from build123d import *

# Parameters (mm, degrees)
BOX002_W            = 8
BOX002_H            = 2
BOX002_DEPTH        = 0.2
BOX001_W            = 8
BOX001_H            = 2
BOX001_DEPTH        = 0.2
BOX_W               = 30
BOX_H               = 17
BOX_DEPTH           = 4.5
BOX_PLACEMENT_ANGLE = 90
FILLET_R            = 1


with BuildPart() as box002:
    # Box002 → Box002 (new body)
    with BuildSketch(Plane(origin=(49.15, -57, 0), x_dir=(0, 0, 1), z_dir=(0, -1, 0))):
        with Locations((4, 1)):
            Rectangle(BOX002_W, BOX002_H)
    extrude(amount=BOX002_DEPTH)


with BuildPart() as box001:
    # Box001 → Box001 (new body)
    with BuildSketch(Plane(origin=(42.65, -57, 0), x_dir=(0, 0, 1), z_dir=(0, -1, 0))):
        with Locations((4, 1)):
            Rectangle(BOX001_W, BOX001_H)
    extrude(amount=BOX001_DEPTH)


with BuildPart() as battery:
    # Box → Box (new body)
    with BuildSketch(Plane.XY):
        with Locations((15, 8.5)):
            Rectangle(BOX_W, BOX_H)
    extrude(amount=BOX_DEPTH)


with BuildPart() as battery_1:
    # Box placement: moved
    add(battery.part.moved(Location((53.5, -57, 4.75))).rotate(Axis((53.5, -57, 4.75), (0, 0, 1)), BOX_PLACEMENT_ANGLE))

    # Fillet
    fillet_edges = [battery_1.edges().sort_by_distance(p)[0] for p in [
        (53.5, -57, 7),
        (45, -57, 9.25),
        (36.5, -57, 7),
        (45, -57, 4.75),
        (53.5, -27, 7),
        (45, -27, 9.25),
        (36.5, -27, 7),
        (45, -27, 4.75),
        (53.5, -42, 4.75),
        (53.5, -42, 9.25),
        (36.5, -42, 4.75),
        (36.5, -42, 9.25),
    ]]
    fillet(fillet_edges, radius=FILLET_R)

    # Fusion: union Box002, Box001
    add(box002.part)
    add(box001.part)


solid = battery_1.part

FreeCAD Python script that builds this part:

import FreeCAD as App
import Part
import Sketcher

doc = App.newDocument("Part")
params = doc.addObject("Spreadsheet::Sheet", "Params")
for row, (alias, value) in enumerate([
    ("sketch1_width", "2 mm"),
    ("sketch1_height", "8 mm"),
    ("pad1_length", "0.2 mm"),
    ("sketch2_width", "2 mm"),
    ("sketch2_height", "8 mm"),
    ("pad2_length", "0.2 mm"),
    ("sketch3_width", "30 mm"),
    ("sketch3_height", "17 mm"),
    ("pad3_length", "4.5 mm"),
    ("fillet_radius", "1 mm"),
], start=1):
    params.set(f"A{row}", alias)
    params.set(f"B{row}", "=" + value)
    params.setAlias(f"B{row}", alias)

body = doc.addObject("PartDesign::Body", "Body")

sketch1 = body.newObject("Sketcher::SketchObject", "Sketch")
sketch1.AttachmentSupport = (doc.getObject("XZ_Plane"), [""])
sketch1.MapMode = "FlatFace"
sketch1.AttachmentOffset = App.Placement(App.Vector(0, 0, 57), App.Rotation())
sketch1.addGeometry([
    Part.LineSegment(App.Vector(47.1, 0, 0), App.Vector(49.1, 0, 0)),
    Part.LineSegment(App.Vector(49.1, 0, 0), App.Vector(49.1, 8, 0)),
    Part.LineSegment(App.Vector(49.1, 8, 0), App.Vector(47.1, 8, 0)),
    Part.LineSegment(App.Vector(47.1, 8, 0), App.Vector(47.1, 0, 0)),
], False)
sketch1.addConstraint([
    Sketcher.Constraint("Coincident", 0, 2, 1, 1),
    Sketcher.Constraint("Coincident", 1, 2, 2, 1),
    Sketcher.Constraint("Coincident", 2, 2, 3, 1),
    Sketcher.Constraint("Coincident", 3, 2, 0, 1),
    Sketcher.Constraint("Horizontal", 0),
    Sketcher.Constraint("Vertical", 1),
    Sketcher.Constraint("Horizontal", 2),
    Sketcher.Constraint("Vertical", 3),
    Sketcher.Constraint("PointOnObject", 0, 2, -1),
    Sketcher.Constraint("DistanceX", 0, 1, 0, 2, 2.0),
    Sketcher.Constraint("DistanceY", 1, 1, 1, 2, 8.0),
    Sketcher.Constraint("DistanceX", -1, 1, 0, 2, 49.15),
])
sketch1.setExpression("Constraints[9]", "Params.sketch1_width")
sketch1.setExpression("Constraints[10]", "Params.sketch1_height")
pad1 = body.newObject("PartDesign::Pad", "Pad")
pad1.Profile = sketch1
pad1.setExpression("Length", "Params.pad1_length")
body2 = doc.addObject("PartDesign::Body", "Body001")

sketch2 = body2.newObject("Sketcher::SketchObject", "Sketch001")
sketch2.AttachmentSupport = (doc.getObject("XZ_Plane001"), [""])
sketch2.MapMode = "FlatFace"
sketch2.AttachmentOffset = App.Placement(App.Vector(0, 0, 57), App.Rotation())
sketch2.addGeometry([
    Part.LineSegment(App.Vector(40.6, 0, 0), App.Vector(42.6, 0, 0)),
    Part.LineSegment(App.Vector(42.6, 0, 0), App.Vector(42.6, 8, 0)),
    Part.LineSegment(App.Vector(42.6, 8, 0), App.Vector(40.6, 8, 0)),
    Part.LineSegment(App.Vector(40.6, 8, 0), App.Vector(40.6, 0, 0)),
], False)
sketch2.addConstraint([
    Sketcher.Constraint("Coincident", 0, 2, 1, 1),
    Sketcher.Constraint("Coincident", 1, 2, 2, 1),
    Sketcher.Constraint("Coincident", 2, 2, 3, 1),
    Sketcher.Constraint("Coincident", 3, 2, 0, 1),
    Sketcher.Constraint("Horizontal", 0),
    Sketcher.Constraint("Vertical", 1),
    Sketcher.Constraint("Horizontal", 2),
    Sketcher.Constraint("Vertical", 3),
    Sketcher.Constraint("PointOnObject", 0, 2, -1),
    Sketcher.Constraint("DistanceX", 0, 1, 0, 2, 2.0),
    Sketcher.Constraint("DistanceY", 1, 1, 1, 2, 8.0),
    Sketcher.Constraint("DistanceX", -1, 1, 0, 2, 42.65),
])
sketch2.setExpression("Constraints[9]", "Params.sketch2_width")
sketch2.setExpression("Constraints[10]", "Params.sketch2_height")
pad2 = body2.newObject("PartDesign::Pad", "Pad001")
pad2.Profile = sketch2
pad2.setExpression("Length", "Params.pad2_length")
body3 = doc.addObject("PartDesign::Body", "Body002")

sketch3 = body3.newObject("Sketcher::SketchObject", "Sketch002")
sketch3.AttachmentSupport = (doc.getObject("XY_Plane002"), [""])
sketch3.MapMode = "FlatFace"
sketch3.addGeometry([
    Part.LineSegment(App.Vector(0, 17, 0), App.Vector(0, 0, 0)),
    Part.LineSegment(App.Vector(0, 0, 0), App.Vector(30, 0, 0)),
    Part.LineSegment(App.Vector(30, 0, 0), App.Vector(30, 17, 0)),
    Part.LineSegment(App.Vector(30, 17, 0), App.Vector(0, 17, 0)),
], False)
sketch3.addConstraint([
    Sketcher.Constraint("Coincident", 0, 2, 1, 1),
    Sketcher.Constraint("Coincident", 1, 2, 2, 1),
    Sketcher.Constraint("Coincident", 2, 2, 3, 1),
    Sketcher.Constraint("Coincident", 3, 2, 0, 1),
    Sketcher.Constraint("Vertical", 0),
    Sketcher.Constraint("Horizontal", 1),
    Sketcher.Constraint("Vertical", 2),
    Sketcher.Constraint("Horizontal", 3),
    Sketcher.Constraint("Coincident", 0, 2, -1, 1),
    Sketcher.Constraint("DistanceX", 1, 1, 1, 2, 30.0),
    Sketcher.Constraint("DistanceY", 0, 2, 0, 1, 17.0),
])
sketch3.setExpression("Constraints[9]", "Params.sketch3_width")
sketch3.setExpression("Constraints[10]", "Params.sketch3_height")
pad3 = body3.newObject("PartDesign::Pad", "Pad002")
pad3.Profile = sketch3
pad3.setExpression("Length", "Params.pad3_length")
body4 = doc.addObject("PartDesign::Body", "Body003")
doc.recompute()

body3.Placement = App.Placement(App.Vector(53.5, -57, 4.75), App.Rotation(App.Vector(0, 0, 1), 90))
boolean = body4.newObject("PartDesign::Boolean", "Boolean")
boolean.Type = "Fuse"
boolean.addObjects([body3])
doc.recompute()

fillet = body4.newObject("PartDesign::Fillet", "Fillet")
fillet.Base = (boolean, ["Edge1"])
fillet.UseAllEdges = True
fillet.setExpression("Radius", "Params.fillet_radius")
doc.recompute()

boolean2 = body4.newObject("PartDesign::Boolean", "Boolean001")
boolean2.Type = "Fuse"
boolean2.addObjects([body])
doc.recompute()

boolean3 = body4.newObject("PartDesign::Boolean", "Boolean002")
boolean3.Type = "Fuse"
boolean3.addObjects([body2])

doc.recompute()
